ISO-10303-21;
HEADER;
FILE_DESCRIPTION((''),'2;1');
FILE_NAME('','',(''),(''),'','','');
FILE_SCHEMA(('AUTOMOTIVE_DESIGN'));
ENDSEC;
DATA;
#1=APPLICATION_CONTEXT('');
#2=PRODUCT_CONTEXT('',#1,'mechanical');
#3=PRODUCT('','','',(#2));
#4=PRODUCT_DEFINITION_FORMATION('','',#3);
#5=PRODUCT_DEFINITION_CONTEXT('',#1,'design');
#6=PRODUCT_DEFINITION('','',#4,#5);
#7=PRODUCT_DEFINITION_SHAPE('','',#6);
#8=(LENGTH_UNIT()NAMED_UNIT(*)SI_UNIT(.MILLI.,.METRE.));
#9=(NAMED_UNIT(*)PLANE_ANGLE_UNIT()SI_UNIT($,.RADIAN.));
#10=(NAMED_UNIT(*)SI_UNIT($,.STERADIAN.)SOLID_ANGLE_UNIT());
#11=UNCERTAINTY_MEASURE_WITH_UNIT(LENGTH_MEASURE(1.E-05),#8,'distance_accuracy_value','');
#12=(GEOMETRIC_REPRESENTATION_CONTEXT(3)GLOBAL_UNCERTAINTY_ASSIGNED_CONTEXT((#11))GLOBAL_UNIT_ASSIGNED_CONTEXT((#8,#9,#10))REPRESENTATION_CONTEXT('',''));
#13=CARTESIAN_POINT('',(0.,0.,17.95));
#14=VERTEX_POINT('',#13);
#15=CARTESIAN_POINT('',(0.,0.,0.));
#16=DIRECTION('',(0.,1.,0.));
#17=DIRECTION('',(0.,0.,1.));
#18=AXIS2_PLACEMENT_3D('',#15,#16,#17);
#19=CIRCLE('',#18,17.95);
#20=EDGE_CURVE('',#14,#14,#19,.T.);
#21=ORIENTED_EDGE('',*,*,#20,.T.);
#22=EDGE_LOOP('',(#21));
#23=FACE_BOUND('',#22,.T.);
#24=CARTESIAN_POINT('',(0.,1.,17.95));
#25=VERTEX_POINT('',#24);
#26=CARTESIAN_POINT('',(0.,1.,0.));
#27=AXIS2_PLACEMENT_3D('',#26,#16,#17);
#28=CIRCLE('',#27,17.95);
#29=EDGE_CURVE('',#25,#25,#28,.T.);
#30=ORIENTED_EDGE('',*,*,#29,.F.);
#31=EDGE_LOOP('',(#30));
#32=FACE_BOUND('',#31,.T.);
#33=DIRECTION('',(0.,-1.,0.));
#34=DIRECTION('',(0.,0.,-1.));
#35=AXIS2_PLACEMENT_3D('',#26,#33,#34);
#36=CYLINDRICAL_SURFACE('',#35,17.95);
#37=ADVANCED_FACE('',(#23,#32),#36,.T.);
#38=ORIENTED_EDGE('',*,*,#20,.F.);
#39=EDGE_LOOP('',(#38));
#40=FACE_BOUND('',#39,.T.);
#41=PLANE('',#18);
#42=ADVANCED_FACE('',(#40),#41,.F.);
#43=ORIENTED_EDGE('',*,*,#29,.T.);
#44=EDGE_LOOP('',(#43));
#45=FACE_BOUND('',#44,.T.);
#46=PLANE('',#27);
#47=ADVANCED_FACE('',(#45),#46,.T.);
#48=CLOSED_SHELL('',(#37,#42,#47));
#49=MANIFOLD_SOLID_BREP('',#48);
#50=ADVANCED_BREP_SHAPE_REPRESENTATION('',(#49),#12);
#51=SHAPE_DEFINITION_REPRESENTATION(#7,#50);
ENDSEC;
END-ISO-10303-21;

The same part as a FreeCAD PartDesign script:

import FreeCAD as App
import Part
import Sketcher
from FreeCAD import Vector

doc = App.newDocument("Part")
body = doc.addObject("PartDesign::Body", "Body")

sketch1 = doc.addObject("Sketcher::SketchObject", "Sketch")
body.addObject(sketch1)
sketch1.AttachmentSupport = (doc.XZ_Plane, [""])
sketch1.MapMode = "FlatFace"
sketch1.addGeometry(Part.Circle(Vector(0, 0, 0), Vector(0, 0, 1), 18), False)
sketch1.addConstraint([
    Sketcher.Constraint("Coincident", 0, 3, -1, 1),
    Sketcher.Constraint("Diameter", 0, 35.9),
])
pad1 = doc.addObject("PartDesign::Pad", "Pad")
body.addObject(pad1)
pad1.Profile = sketch1
pad1.Length = 1
pad1.Reversed = True

doc.recompute()
